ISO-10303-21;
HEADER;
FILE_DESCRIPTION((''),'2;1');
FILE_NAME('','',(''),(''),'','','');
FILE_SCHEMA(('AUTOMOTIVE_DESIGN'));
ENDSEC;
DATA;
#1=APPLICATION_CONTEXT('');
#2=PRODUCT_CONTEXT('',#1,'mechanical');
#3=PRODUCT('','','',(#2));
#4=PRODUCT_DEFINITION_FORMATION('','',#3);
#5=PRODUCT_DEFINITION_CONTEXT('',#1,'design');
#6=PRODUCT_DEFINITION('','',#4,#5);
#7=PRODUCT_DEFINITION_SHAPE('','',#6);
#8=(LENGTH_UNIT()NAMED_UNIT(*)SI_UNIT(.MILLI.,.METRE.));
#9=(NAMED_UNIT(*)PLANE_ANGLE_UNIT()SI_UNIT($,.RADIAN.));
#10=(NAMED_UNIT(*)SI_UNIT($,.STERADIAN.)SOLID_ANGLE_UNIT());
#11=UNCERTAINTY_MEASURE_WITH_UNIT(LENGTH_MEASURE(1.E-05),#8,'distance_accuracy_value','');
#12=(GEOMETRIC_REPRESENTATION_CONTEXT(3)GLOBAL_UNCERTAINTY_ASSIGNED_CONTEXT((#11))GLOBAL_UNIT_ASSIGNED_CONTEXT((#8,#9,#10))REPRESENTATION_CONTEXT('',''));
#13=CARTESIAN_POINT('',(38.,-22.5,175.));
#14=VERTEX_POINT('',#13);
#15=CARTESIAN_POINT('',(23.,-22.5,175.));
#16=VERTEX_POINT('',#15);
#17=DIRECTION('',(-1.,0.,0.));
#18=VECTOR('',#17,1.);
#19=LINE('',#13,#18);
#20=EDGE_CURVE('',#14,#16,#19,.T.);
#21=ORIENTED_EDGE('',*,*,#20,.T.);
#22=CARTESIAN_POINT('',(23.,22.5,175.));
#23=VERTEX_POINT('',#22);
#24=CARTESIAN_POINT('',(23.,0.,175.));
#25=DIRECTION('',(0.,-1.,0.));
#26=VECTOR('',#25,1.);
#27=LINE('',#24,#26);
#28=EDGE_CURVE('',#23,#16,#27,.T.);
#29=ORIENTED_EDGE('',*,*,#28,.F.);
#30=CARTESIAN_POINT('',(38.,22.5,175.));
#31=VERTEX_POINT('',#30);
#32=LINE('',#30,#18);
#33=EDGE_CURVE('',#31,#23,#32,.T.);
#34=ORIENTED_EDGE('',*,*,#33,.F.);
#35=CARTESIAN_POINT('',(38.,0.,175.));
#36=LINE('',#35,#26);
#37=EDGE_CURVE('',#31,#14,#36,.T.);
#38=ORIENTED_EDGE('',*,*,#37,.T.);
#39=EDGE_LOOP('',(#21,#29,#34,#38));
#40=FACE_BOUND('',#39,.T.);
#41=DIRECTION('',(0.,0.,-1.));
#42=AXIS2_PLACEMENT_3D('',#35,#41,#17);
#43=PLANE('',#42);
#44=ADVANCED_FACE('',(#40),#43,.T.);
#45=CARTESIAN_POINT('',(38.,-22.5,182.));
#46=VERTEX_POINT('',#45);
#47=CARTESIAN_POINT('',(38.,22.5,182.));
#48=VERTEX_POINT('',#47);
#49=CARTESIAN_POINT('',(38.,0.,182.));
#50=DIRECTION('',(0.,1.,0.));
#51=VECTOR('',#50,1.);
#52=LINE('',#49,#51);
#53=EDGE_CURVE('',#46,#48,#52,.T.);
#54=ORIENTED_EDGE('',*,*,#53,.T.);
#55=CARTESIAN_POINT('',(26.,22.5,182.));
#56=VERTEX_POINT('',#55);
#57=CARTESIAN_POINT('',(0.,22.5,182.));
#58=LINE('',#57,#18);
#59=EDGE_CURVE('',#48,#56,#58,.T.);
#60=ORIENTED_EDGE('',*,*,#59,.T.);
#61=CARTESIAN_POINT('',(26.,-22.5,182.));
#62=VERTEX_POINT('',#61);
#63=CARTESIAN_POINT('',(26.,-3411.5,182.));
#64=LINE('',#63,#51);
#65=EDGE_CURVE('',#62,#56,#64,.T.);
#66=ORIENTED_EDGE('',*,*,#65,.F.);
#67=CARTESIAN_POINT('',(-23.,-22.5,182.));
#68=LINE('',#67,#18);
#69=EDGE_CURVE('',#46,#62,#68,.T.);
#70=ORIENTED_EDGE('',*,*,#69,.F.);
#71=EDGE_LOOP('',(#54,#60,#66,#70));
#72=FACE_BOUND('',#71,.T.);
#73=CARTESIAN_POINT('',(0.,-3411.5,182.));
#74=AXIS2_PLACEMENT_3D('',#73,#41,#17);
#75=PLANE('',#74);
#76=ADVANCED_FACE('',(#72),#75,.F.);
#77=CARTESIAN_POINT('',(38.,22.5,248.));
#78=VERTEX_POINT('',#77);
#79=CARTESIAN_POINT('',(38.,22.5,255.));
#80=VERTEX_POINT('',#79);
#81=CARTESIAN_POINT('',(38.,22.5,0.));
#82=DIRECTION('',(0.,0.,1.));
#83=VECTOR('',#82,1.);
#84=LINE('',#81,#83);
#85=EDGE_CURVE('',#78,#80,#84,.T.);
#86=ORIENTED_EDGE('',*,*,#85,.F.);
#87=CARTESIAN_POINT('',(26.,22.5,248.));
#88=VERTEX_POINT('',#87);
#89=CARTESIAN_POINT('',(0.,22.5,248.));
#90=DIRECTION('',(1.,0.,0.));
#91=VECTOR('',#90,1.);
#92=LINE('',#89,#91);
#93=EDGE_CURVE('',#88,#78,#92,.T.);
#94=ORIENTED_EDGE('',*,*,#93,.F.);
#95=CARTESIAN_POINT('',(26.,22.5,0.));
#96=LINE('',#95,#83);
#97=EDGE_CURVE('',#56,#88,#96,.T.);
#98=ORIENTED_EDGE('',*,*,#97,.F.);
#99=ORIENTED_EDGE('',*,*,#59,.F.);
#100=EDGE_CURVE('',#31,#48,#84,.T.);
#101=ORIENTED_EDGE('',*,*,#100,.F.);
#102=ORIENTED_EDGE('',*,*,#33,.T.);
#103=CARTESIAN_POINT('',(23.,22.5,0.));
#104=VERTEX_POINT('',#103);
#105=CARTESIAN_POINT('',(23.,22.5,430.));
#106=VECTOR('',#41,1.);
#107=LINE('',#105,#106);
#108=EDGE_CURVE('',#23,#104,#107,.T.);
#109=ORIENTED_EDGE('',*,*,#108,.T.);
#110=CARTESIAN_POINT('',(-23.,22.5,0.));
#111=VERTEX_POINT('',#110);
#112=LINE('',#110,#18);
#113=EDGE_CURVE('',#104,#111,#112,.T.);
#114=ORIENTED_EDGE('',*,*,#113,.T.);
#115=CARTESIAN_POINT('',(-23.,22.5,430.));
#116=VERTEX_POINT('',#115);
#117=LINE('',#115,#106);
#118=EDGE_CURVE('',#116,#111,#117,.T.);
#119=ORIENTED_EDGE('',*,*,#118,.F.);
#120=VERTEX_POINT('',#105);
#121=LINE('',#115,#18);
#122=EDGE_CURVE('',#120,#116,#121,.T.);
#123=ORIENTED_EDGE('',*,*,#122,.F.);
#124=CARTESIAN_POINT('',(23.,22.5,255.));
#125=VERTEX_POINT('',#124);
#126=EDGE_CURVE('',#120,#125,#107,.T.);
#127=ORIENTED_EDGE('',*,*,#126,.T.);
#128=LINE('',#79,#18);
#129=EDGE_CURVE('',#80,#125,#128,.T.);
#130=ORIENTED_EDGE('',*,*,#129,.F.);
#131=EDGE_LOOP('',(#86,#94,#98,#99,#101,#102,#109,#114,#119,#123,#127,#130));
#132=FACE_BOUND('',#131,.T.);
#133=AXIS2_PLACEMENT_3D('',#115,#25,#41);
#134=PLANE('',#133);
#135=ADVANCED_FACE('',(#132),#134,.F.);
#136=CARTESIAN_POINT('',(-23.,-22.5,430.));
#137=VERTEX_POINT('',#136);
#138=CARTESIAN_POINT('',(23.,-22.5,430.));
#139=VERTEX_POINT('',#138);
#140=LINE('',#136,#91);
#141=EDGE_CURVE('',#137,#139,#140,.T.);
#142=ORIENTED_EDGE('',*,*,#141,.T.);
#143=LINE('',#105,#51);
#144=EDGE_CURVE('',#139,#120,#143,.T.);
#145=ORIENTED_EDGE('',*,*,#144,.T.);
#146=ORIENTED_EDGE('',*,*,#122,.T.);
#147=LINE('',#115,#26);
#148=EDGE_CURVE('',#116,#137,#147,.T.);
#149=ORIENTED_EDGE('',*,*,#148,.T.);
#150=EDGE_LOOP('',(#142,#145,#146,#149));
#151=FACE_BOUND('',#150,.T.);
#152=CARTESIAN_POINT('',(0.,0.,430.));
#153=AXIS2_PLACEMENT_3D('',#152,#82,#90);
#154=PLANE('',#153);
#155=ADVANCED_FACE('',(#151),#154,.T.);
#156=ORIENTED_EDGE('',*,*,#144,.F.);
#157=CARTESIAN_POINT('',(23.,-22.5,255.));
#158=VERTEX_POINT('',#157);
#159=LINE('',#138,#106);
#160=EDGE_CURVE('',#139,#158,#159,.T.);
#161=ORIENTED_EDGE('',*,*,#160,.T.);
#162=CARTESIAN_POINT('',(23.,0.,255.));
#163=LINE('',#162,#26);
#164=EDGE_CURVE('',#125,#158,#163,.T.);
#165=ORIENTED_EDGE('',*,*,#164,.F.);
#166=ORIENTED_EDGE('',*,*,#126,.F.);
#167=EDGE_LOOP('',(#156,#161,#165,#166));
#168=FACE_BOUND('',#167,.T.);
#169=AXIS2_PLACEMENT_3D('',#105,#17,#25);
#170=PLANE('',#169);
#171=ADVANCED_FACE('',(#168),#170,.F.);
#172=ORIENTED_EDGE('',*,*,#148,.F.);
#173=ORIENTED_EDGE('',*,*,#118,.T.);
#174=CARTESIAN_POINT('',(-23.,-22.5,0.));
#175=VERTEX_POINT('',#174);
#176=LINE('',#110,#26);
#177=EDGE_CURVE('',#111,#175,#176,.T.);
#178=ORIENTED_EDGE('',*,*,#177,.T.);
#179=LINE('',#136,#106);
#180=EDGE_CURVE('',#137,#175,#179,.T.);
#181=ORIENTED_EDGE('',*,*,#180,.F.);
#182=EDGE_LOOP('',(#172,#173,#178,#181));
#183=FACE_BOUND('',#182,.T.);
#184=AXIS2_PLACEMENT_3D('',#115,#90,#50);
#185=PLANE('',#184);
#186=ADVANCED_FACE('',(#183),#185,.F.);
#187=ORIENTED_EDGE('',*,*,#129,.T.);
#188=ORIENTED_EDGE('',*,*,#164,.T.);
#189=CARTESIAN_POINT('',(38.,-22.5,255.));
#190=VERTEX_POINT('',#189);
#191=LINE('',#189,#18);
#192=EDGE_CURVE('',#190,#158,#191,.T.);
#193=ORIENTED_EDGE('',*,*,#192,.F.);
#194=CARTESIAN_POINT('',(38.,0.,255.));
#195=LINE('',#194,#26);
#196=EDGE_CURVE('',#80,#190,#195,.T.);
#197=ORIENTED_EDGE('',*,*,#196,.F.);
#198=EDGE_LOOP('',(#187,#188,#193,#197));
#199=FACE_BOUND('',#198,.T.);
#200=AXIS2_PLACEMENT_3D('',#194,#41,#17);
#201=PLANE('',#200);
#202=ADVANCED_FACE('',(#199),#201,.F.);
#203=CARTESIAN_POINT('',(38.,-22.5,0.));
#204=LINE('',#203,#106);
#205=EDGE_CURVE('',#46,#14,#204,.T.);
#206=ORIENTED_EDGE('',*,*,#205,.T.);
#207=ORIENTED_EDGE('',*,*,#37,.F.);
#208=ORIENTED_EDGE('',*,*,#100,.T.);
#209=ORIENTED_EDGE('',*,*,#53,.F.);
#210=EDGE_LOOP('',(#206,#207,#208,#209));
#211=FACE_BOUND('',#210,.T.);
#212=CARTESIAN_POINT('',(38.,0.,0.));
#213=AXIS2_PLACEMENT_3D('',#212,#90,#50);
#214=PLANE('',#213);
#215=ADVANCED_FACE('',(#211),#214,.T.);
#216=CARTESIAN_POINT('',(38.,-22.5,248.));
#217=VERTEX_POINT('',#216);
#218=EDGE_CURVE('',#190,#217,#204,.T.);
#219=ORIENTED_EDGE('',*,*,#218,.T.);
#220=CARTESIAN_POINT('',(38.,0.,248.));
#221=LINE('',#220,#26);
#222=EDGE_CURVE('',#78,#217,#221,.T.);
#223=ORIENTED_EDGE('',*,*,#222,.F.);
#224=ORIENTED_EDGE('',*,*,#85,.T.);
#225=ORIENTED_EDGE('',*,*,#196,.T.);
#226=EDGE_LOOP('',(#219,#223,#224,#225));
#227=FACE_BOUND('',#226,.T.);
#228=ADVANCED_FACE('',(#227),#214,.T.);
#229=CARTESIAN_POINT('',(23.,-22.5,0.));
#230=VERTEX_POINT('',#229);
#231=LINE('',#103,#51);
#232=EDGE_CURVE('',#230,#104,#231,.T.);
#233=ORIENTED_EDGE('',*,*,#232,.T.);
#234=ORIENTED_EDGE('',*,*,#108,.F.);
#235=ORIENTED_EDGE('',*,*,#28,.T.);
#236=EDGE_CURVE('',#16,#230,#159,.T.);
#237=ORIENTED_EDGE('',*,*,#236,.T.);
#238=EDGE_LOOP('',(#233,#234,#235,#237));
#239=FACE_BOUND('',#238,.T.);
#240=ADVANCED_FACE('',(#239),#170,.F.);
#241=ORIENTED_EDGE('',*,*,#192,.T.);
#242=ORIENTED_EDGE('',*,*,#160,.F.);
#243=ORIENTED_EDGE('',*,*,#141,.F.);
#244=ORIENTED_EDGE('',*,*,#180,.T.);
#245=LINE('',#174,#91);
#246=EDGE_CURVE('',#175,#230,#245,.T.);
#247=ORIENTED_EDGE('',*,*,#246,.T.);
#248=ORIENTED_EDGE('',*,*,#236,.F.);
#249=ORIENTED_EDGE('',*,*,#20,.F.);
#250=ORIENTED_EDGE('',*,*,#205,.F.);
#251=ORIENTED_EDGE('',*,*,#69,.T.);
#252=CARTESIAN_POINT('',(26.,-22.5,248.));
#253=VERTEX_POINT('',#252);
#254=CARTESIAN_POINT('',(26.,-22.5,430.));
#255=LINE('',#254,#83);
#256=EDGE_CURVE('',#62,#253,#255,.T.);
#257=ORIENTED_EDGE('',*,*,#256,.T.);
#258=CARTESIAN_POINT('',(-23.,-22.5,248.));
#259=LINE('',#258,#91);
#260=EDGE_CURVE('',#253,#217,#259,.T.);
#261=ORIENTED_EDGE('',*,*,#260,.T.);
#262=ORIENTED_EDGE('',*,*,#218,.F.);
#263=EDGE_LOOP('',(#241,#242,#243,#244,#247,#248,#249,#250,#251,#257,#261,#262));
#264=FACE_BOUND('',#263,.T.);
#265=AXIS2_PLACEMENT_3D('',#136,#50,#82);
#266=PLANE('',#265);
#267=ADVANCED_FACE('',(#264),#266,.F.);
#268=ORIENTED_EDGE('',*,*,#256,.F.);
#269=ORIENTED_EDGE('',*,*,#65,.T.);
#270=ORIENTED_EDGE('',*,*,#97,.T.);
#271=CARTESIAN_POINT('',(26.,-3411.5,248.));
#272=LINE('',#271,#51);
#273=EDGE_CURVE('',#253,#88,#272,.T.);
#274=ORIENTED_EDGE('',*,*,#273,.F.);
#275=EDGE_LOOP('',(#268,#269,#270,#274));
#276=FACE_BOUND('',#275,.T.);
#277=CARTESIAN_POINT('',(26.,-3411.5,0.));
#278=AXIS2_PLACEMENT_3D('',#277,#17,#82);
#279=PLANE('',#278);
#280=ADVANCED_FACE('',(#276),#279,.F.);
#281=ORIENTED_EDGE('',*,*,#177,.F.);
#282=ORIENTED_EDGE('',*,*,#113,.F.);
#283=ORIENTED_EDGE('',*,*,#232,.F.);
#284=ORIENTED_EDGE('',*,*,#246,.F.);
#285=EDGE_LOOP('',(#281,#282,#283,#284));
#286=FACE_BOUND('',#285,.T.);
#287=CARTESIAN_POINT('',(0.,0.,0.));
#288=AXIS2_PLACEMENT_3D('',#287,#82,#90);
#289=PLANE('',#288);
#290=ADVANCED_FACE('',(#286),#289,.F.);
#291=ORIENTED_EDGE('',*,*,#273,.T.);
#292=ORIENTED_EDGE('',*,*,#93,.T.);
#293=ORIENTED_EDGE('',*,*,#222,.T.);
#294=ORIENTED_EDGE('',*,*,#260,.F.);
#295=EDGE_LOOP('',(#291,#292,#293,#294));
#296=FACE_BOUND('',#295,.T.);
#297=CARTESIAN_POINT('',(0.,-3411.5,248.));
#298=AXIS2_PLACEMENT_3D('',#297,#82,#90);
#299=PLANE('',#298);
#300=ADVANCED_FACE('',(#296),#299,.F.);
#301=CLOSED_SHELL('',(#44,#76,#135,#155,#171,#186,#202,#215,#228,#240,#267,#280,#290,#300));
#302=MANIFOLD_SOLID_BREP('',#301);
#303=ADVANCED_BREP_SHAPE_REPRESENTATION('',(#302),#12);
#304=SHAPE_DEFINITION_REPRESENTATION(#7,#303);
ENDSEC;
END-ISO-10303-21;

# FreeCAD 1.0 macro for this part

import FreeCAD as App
import Part
import Sketcher

V = App.Vector
Q = App.Units.Quantity

doc = App.newDocument("Part")
body = doc.addObject("PartDesign::Body", "Body")

sketch1 = doc.addObject("Sketcher::SketchObject", "Sketch")
body.addObject(sketch1)
sketch1.AttachmentSupport = (doc.XY_Plane, [""])
sketch1.MapMode = "FlatFace"
sketch1.addGeometry(Part.LineSegment(V(-23, 22, 0), V(-23, -22, 0)), False)
sketch1.addGeometry(Part.LineSegment(V(-23, -22, 0), V(23, -22, 0)), False)
sketch1.addGeometry(Part.LineSegment(V(23, -22, 0), V(23, 22, 0)), False)
sketch1.addGeometry(Part.LineSegment(V(23, 22, 0), V(-23, 22, 0)), False)
sketch1.addConstraint(Sketcher.Constraint("Coincident", 0, 2, 1, 1))
sketch1.addConstraint(Sketcher.Constraint("Coincident", 1, 2, 2, 1))
sketch1.addConstraint(Sketcher.Constraint("Coincident", 2, 2, 3, 1))
sketch1.addConstraint(Sketcher.Constraint("Coincident", 3, 2, 0, 1))
sketch1.addConstraint(Sketcher.Constraint("Vertical", 0))
sketch1.addConstraint(Sketcher.Constraint("Horizontal", 1))
sketch1.addConstraint(Sketcher.Constraint("Vertical", 2))
sketch1.addConstraint(Sketcher.Constraint("Horizontal", 3))
sketch1.addConstraint(Sketcher.Constraint("Symmetric", 0, 2, 2, 2, -1, 1))
sketch1.addConstraint(Sketcher.Constraint("DistanceX", 1, 1, 1, 2, Q("46 mm")))
sketch1.addConstraint(Sketcher.Constraint("DistanceY", 0, 2, 0, 1, Q("45 mm")))
pad1 = doc.addObject("PartDesign::Pad", "Pad")
body.addObject(pad1)
pad1.Profile = sketch1
pad1.Length = 430

sketch2 = doc.addObject("Sketcher::SketchObject", "Sketch001")
body.addObject(sketch2)
sketch2.AttachmentSupport = (doc.YZ_Plane, [""])
sketch2.MapMode = "FlatFace"
sketch2.AttachmentOffset = App.Placement(V(0, 0, 23), App.Rotation())
sketch2.addGeometry(Part.LineSegment(V(-22, 175, 0), V(22, 175, 0)), False)
sketch2.addGeometry(Part.LineSegment(V(22, 175, 0), V(22, 255, 0)), False)
sketch2.addGeometry(Part.LineSegment(V(22, 255, 0), V(-22, 255, 0)), False)
sketch2.addGeometry(Part.LineSegment(V(-22, 255, 0), V(-22, 175, 0)), False)
sketch2.addConstraint(Sketcher.Constraint("Coincident", 0, 2, 1, 1))
sketch2.addConstraint(Sketcher.Constraint("Coincident", 1, 2, 2, 1))
sketch2.addConstraint(Sketcher.Constraint("Coincident", 2, 2, 3, 1))
sketch2.addConstraint(Sketcher.Constraint("Coincident", 3, 2, 0, 1))
sketch2.addConstraint(Sketcher.Constraint("Horizontal", 0))
sketch2.addConstraint(Sketcher.Constraint("Vertical", 1))
sketch2.addConstraint(Sketcher.Constraint("Horizontal", 2))
sketch2.addConstraint(Sketcher.Constraint("Vertical", 3))
sketch2.addConstraint(Sketcher.Constraint("DistanceX", 0, 1, 0, 2, Q("45 mm")))
sketch2.addConstraint(Sketcher.Constraint("DistanceY", 1, 1, 1, 2, Q("80 mm")))
sketch2.addConstraint(Sketcher.Constraint("DistanceY", -1, 1, 0, 2, Q("175 mm")))
sketch2.addConstraint(Sketcher.Constraint("DistanceX", -1, 1, 0, 2, Q("22.5 mm")))
pad2 = doc.addObject("PartDesign::Pad", "Pad001")
body.addObject(pad2)
pad2.Profile = sketch2
pad2.Length = 15

sketch3 = doc.addObject("Sketcher::SketchObject", "Sketch002")
body.addObject(sketch3)
sketch3.AttachmentSupport = (doc.XZ_Plane, [""])
sketch3.MapMode = "FlatFace"
sketch3.AttachmentOffset = App.Placement(V(0, 0, -22.5), App.Rotation())
sketch3.addGeometry(Part.LineSegment(V(26, 182, 0), V(26, 248, 0)), False)
sketch3.addGeometry(Part.LineSegment(V(26, 248, 0), V(38, 248, 0)), False)
sketch3.addGeometry(Part.LineSegment(V(38, 248, 0), V(38, 182, 0)), False)
sketch3.addGeometry(Part.LineSegment(V(38, 182, 0), V(26, 182, 0)), False)
sketch3.addConstraint(Sketcher.Constraint("Coincident", 0, 2, 1, 1))
sketch3.addConstraint(Sketcher.Constraint("Coincident", 1, 2, 2, 1))
sketch3.addConstraint(Sketcher.Constraint("Coincident", 2, 2, 3, 1))
sketch3.addConstraint(Sketcher.Constraint("Coincident", 3, 2, 0, 1))
sketch3.addConstraint(Sketcher.Constraint("Vertical", 0))
sketch3.addConstraint(Sketcher.Constraint("Horizontal", 1))
sketch3.addConstraint(Sketcher.Constraint("Vertical", 2))
sketch3.addConstraint(Sketcher.Constraint("Horizontal", 3))
sketch3.addConstraint(Sketcher.Constraint("DistanceX", 1, 1, 1, 2, Q("12 mm")))
sketch3.addConstraint(Sketcher.Constraint("DistanceY", 0, 1, 0, 2, Q("66 mm")))
sketch3.addConstraint(Sketcher.Constraint("DistanceX", -1, 1, 0, 2, Q("26 mm")))
sketch3.addConstraint(Sketcher.Constraint("DistanceY", -1, 1, 0, 2, Q("248 mm")))
pocket1 = doc.addObject("PartDesign::Pocket", "Pocket")
body.addObject(pocket1)
pocket1.Profile = sketch3
pocket1.Length = 3434
pocket1.Reversed = True

doc.recompute()
